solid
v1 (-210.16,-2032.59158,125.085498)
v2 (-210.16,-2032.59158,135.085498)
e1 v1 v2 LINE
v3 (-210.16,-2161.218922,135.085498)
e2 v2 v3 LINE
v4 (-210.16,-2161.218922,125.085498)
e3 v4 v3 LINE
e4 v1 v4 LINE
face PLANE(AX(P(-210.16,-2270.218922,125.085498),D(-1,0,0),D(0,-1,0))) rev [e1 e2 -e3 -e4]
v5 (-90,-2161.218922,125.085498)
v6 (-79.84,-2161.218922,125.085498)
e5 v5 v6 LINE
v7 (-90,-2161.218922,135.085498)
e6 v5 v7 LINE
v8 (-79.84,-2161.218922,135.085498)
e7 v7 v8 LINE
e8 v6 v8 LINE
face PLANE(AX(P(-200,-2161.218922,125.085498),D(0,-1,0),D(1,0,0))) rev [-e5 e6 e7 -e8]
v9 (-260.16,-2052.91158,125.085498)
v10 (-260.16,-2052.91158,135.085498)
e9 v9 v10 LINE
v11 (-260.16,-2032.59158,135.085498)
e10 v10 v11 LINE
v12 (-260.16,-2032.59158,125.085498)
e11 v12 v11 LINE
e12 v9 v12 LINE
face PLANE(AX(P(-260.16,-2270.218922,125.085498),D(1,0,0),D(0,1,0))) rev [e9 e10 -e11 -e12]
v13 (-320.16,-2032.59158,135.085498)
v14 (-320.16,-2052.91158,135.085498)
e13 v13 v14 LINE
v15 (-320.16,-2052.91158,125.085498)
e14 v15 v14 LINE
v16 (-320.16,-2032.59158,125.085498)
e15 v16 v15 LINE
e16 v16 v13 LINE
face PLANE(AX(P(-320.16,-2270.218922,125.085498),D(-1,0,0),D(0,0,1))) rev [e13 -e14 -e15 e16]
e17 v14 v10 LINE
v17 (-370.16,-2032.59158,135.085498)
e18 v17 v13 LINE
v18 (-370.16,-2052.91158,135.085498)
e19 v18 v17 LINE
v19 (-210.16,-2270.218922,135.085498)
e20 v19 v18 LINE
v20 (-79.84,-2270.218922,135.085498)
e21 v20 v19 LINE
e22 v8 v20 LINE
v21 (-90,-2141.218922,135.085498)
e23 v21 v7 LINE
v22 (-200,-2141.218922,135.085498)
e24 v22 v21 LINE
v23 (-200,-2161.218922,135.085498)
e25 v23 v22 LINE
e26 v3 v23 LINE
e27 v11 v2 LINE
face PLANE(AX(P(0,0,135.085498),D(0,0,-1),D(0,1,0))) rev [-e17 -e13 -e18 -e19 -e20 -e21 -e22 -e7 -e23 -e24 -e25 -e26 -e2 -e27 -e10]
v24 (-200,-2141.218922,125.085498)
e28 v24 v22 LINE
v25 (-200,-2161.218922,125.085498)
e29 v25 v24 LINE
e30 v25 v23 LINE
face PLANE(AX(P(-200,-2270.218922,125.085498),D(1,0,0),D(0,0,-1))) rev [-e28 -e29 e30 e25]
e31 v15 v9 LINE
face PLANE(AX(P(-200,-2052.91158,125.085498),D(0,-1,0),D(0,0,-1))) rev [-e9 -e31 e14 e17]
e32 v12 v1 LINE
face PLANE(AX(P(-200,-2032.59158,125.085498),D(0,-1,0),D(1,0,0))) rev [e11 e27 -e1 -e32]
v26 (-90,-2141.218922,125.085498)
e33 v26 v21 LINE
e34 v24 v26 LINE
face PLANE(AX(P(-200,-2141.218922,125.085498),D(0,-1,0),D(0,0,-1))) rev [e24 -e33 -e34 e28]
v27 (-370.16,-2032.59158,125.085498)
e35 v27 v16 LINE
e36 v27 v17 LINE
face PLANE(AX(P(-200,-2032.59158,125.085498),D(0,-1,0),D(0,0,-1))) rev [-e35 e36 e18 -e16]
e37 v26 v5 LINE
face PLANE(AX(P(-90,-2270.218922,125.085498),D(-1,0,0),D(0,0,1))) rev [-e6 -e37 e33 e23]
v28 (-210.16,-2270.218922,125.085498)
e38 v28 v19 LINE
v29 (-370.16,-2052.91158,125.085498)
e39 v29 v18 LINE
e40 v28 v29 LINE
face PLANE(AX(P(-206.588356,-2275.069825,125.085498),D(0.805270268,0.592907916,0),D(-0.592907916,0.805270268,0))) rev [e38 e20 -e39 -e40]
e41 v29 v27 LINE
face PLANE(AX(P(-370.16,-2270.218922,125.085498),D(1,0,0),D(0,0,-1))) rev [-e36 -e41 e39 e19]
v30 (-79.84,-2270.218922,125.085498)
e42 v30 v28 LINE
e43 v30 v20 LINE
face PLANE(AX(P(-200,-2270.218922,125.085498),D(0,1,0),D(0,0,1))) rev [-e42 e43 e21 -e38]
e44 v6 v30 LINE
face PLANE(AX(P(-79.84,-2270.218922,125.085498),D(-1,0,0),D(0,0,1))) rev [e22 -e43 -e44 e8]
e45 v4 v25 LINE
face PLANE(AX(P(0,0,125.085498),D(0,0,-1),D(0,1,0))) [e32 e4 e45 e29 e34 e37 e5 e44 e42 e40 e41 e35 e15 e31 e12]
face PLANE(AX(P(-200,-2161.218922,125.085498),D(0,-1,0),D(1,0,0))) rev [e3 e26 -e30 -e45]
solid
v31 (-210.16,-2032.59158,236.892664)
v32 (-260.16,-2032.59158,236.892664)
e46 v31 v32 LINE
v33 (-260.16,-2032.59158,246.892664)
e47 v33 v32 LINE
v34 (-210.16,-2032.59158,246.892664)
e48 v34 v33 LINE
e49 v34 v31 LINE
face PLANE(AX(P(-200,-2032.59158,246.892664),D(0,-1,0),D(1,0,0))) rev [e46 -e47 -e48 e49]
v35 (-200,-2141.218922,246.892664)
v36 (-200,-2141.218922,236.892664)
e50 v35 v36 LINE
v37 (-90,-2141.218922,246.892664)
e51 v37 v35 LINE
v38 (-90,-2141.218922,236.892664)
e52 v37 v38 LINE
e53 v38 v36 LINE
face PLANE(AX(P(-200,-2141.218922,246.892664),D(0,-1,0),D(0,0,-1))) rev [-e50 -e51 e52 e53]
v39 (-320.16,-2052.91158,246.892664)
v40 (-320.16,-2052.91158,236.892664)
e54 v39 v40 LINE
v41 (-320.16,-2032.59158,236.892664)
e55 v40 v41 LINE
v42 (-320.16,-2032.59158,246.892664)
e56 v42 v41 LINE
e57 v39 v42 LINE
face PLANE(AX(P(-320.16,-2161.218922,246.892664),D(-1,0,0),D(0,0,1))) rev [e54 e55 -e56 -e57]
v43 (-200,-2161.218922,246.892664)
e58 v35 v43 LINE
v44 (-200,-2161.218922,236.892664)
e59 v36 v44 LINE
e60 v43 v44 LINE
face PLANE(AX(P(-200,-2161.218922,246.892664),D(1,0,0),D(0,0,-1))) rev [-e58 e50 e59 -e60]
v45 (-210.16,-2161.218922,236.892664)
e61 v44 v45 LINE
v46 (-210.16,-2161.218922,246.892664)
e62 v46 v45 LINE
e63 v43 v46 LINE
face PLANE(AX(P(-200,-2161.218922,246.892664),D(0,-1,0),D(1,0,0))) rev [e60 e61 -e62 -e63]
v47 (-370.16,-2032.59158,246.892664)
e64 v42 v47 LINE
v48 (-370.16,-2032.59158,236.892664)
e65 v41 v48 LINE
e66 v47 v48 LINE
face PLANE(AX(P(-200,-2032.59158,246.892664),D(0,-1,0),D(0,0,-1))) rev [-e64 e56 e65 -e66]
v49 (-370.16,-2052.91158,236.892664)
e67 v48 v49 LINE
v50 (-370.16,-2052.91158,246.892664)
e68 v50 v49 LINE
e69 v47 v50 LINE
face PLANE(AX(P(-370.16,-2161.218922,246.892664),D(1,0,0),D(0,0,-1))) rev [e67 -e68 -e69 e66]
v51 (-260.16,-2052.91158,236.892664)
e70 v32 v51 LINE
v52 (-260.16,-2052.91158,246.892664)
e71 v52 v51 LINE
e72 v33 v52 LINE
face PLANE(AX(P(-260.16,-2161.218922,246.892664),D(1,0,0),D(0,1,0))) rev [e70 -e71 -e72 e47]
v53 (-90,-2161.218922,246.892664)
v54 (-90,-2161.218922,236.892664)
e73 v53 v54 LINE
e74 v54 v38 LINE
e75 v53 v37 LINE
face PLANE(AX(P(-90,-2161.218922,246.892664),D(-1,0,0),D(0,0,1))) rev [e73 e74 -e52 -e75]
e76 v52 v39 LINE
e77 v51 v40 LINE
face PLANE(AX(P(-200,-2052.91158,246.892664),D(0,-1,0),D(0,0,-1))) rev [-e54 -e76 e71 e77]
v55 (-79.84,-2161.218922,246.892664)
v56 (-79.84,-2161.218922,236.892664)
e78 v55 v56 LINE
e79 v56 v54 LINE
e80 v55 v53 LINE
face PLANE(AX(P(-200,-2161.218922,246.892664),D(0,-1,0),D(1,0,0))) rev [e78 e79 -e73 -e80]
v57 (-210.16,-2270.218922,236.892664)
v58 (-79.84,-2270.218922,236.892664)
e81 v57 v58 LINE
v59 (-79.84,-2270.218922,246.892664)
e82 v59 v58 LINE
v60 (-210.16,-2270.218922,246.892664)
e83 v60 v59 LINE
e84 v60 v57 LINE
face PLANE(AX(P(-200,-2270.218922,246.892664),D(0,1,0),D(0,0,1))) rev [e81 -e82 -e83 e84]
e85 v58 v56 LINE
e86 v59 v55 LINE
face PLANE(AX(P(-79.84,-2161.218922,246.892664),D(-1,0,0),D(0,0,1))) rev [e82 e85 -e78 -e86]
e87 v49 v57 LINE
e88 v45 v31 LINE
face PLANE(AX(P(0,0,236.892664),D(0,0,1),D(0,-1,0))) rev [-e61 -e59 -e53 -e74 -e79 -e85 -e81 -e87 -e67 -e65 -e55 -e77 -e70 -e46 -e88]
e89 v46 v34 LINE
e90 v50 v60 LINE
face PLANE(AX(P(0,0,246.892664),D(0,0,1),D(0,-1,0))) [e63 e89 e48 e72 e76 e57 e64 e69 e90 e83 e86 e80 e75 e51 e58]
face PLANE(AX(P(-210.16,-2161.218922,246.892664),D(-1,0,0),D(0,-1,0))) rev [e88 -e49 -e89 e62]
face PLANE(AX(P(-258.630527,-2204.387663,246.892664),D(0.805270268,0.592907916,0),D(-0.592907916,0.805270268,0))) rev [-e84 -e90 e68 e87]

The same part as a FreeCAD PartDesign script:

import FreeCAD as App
import Part
import Sketcher
from FreeCAD import Vector


def add_polygon(sketch, points):
    """Adds a closed chain of lines whose ends are joined by coincident constraints."""
    first, n = sketch.GeometryCount, len(points)
    for a, b in zip(points, points[1:] + points[:1]):
        sketch.addGeometry(Part.LineSegment(App.Vector(*a, 0), App.Vector(*b, 0)), False)
    for i in range(n):
        sketch.addConstraint(Sketcher.Constraint("Coincident", first + i, 2, first + (i + 1) % n, 1))

doc = App.newDocument("Part")
body = doc.addObject("PartDesign::Body", "Body")

sketch1 = body.newObject("Sketcher::SketchObject", "Sketch")
sketch1.AttachmentSupport = (doc.getObject("XY_Plane"), [""])
sketch1.MapMode = "FlatFace"
sketch1.AttachmentOffset = App.Placement(Vector(0, 0, 236.892664), App.Rotation())
add_polygon(sketch1, [(-200, -2161), (-210, -2161), (-210, -2033), (-260, -2033), (-260, -2053), (-320, -2053), (-320, -2033), (-370, -2033), (-370, -2053), (-210, -2270), (-80, -2270), (-80, -2161), (-90, -2161), (-90, -2141), (-200, -2141)])
sketch1.addConstraint([
    Sketcher.Constraint("Horizontal", 0),
    Sketcher.Constraint("Vertical", 1),
    Sketcher.Constraint("Horizontal", 2),
    Sketcher.Constraint("Vertical", 3),
    Sketcher.Constraint("Horizontal", 4),
    Sketcher.Constraint("Vertical", 5),
    Sketcher.Constraint("Horizontal", 6),
    Sketcher.Constraint("Vertical", 7),
    Sketcher.Constraint("Horizontal", 9),
    Sketcher.Constraint("Vertical", 10),
    Sketcher.Constraint("Horizontal", 11),
    Sketcher.Constraint("Vertical", 12),
    Sketcher.Constraint("Horizontal", 13),
    Sketcher.Constraint("Vertical", 14),
    Sketcher.Constraint("Horizontal", 2, 2, 5, 2),
    Sketcher.Constraint("Horizontal", 4, 2, 7, 2),
    Sketcher.Constraint("Horizontal", 0, 2, 10, 2),
    Sketcher.Constraint("Vertical", 1, 2, 8, 2),
    Sketcher.Constraint("Equal", 2, 6),
    Sketcher.Constraint("Equal", 0, 11),
    Sketcher.Constraint("DistanceX", 2, 2, 2, 1, 50.0),
    Sketcher.Constraint("DistanceX", 4, 2, 4, 1, 60.0),
    Sketcher.Constraint("DistanceX", 13, 2, 13, 1, 110.0),
    Sketcher.Constraint("DistanceY", 10, 1, 10, 2, 109.0),
    Sketcher.Constraint("DistanceY", 12, 1, 12, 2, 20.0),
    Sketcher.Constraint("DistanceX", 11, 2, -1, 1, 90.0),
    Sketcher.Constraint("DistanceX", 0, 2, 0, 1, 10.16),
    Sketcher.Constraint("DistanceY", 3, 2, 3, 1, 20.32),
    Sketcher.Constraint("DistanceY", 1, 1, 1, 2, 128.627341),
    Sketcher.Constraint("DistanceY", 0, 2, -1, 1, 2161.218922),
])
pad1 = body.newObject("PartDesign::Pad", "Pad")
pad1.Profile = sketch1
pad1.Length = 10
body2 = doc.addObject("PartDesign::Body", "Body001")

sketch2 = body2.newObject("Sketcher::SketchObject", "Sketch001")
sketch2.AttachmentSupport = (doc.getObject("XY_Plane001"), [""])
sketch2.MapMode = "FlatFace"
sketch2.AttachmentOffset = App.Placement(Vector(0, 0, 125.085498), App.Rotation())
add_polygon(sketch2, [(-200, -2161), (-210, -2161), (-210, -2033), (-260, -2033), (-260, -2053), (-320, -2053), (-320, -2033), (-370, -2033), (-370, -2053), (-210, -2270), (-80, -2270), (-80, -2161), (-90, -2161), (-90, -2141), (-200, -2141)])
sketch2.addConstraint([
    Sketcher.Constraint("Horizontal", 0),
    Sketcher.Constraint("Vertical", 1),
    Sketcher.Constraint("Horizontal", 2),
    Sketcher.Constraint("Vertical", 3),
    Sketcher.Constraint("Horizontal", 4),
    Sketcher.Constraint("Vertical", 5),
    Sketcher.Constraint("Horizontal", 6),
    Sketcher.Constraint("Vertical", 7),
    Sketcher.Constraint("Horizontal", 9),
    Sketcher.Constraint("Vertical", 10),
    Sketcher.Constraint("Horizontal", 11),
    Sketcher.Constraint("Vertical", 12),
    Sketcher.Constraint("Horizontal", 13),
    Sketcher.Constraint("Vertical", 14),
    Sketcher.Constraint("Horizontal", 2, 2, 5, 2),
    Sketcher.Constraint("Horizontal", 4, 2, 7, 2),
    Sketcher.Constraint("Horizontal", 0, 2, 10, 2),
    Sketcher.Constraint("Vertical", 1, 2, 8, 2),
    Sketcher.Constraint("Equal", 2, 6),
    Sketcher.Constraint("Equal", 0, 11),
    Sketcher.Constraint("DistanceX", 2, 2, 2, 1, 50.0),
    Sketcher.Constraint("DistanceX", 4, 2, 4, 1, 60.0),
    Sketcher.Constraint("DistanceX", 13, 2, 13, 1, 110.0),
    Sketcher.Constraint("DistanceY", 10, 1, 10, 2, 109.0),
    Sketcher.Constraint("DistanceY", 12, 1, 12, 2, 20.0),
    Sketcher.Constraint("DistanceX", 11, 2, -1, 1, 90.0),
    Sketcher.Constraint("DistanceX", 0, 2, 0, 1, 10.16),
    Sketcher.Constraint("DistanceY", 3, 2, 3, 1, 20.32),
    Sketcher.Constraint("DistanceY", 1, 1, 1, 2, 128.627341),
    Sketcher.Constraint("DistanceY", 0, 2, -1, 1, 2161.218922),
])
pad2 = body2.newObject("PartDesign::Pad", "Pad001")
pad2.Profile = sketch2
pad2.Length = 10

doc.recompute()
